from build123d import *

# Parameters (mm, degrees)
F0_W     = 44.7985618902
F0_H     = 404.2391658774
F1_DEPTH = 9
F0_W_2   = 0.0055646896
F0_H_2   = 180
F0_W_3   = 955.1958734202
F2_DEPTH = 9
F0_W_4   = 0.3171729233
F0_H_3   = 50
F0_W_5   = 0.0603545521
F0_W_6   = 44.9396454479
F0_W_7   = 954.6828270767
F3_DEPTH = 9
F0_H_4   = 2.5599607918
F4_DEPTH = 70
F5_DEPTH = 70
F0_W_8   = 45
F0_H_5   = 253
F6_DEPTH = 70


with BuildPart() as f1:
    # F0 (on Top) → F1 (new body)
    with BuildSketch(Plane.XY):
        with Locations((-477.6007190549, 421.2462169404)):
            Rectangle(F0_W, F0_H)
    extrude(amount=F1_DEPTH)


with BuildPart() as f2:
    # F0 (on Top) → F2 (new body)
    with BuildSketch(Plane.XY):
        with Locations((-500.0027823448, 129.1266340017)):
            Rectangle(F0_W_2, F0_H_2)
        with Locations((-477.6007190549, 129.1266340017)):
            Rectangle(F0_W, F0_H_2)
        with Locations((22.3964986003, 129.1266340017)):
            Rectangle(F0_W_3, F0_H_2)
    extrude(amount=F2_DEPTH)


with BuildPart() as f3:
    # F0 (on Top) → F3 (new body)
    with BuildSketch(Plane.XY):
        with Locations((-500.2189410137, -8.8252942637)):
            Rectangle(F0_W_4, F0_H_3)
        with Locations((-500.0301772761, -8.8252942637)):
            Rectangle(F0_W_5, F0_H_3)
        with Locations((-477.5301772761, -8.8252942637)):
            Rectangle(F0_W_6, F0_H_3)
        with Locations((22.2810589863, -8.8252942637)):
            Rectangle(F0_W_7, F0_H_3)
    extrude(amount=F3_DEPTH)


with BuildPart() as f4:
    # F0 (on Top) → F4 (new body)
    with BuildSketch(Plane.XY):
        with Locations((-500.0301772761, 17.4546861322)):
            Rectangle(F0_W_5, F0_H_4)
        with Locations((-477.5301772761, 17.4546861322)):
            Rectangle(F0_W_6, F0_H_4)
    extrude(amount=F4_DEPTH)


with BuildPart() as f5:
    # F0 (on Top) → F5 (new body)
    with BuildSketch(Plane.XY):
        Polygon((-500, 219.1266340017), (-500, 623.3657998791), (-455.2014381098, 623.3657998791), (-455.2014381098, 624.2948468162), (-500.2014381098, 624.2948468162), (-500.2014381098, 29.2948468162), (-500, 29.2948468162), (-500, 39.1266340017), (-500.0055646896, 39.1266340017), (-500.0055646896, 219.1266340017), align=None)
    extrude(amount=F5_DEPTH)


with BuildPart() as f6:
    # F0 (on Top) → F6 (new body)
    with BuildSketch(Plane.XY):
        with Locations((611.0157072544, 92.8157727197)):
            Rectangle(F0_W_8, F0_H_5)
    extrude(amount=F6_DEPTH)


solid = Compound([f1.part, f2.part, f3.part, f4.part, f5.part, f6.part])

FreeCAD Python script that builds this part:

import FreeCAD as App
import Part
import Sketcher


def add_polygon(sketch, points):
    """Adds a closed chain of lines whose ends are joined by coincident constraints."""
    first, n = sketch.GeometryCount, len(points)
    for a, b in zip(points, points[1:] + points[:1]):
        sketch.addGeometry(Part.LineSegment(App.Vector(*a, 0), App.Vector(*b, 0)), False)
    for i in range(n):
        sketch.addConstraint(Sketcher.Constraint("Coincident", first + i, 2, first + (i + 1) % n, 1))

doc = App.newDocument("Part")
body = doc.addObject("PartDesign::Body", "Body")

# Sketch on XY plane
sketch1 = doc.addObject("Sketcher::SketchObject", "Sketch")
body.addObject(sketch1)
sketch1.AttachmentSupport = (doc.XY_Plane, [""])
sketch1.MapMode = "FlatFace"
add_polygon(sketch1, [(-500, 623), (-500, 219), (-455, 219), (-455, 623)])  # lines 0-3
sketch1.addConstraint([
    Sketcher.Constraint("Vertical", 0),
    Sketcher.Constraint("Horizontal", 1),
    Sketcher.Constraint("Vertical", 2),
    Sketcher.Constraint("Horizontal", 3),
    Sketcher.Constraint("DistanceX", 0, 2, -1, 1, 500.0),
    Sketcher.Constraint("DistanceX", 1, 1, 1, 2, 44.798562),
    Sketcher.Constraint("DistanceY", -1, 1, 2, 2, 623.3658),
    Sketcher.Constraint("DistanceY", 0, 2, 0, 1, 404.239166),
])
pad1 = doc.addObject("PartDesign::Pad", "Pad")
body.addObject(pad1)
pad1.Profile = sketch1
pad1.Length = 9
body2 = doc.addObject("PartDesign::Body", "Body001")

# Sketch on XY plane
sketch2 = doc.addObject("Sketcher::SketchObject", "Sketch001")
body2.addObject(sketch2)
sketch2.AttachmentSupport = (doc.getObject("XY_Plane001"), [""])
sketch2.MapMode = "FlatFace"
add_polygon(sketch2, [(-500, 219), (-500, 39), (500, 39), (500, 219)])  # lines 0-3
sketch2.addConstraint([
    Sketcher.Constraint("Vertical", 0),
    Sketcher.Constraint("Horizontal", 1),
    Sketcher.Constraint("Vertical", 2),
    Sketcher.Constraint("Horizontal", 3),
    Sketcher.Constraint("DistanceX", 1, 1, 1, 2, 1000.0),
    Sketcher.Constraint("DistanceY", 0, 2, 0, 1, 180.0),
    Sketcher.Constraint("DistanceX", 0, 2, -1, 1, 500.005565),
    Sketcher.Constraint("DistanceY", -1, 1, 0, 2, 39.126634),
])
pad2 = doc.addObject("PartDesign::Pad", "Pad001")
body2.addObject(pad2)
pad2.Profile = sketch2
pad2.Length = 9
body3 = doc.addObject("PartDesign::Body", "Body002")

# Sketch on XY plane
sketch3 = doc.addObject("Sketcher::SketchObject", "Sketch002")
body3.addObject(sketch3)
sketch3.AttachmentSupport = (doc.getObject("XY_Plane002"), [""])
sketch3.MapMode = "FlatFace"
add_polygon(sketch3, [(-500, 16), (-500, -34), (500, -34), (500, 16)])  # lines 0-3
sketch3.addConstraint([
    Sketcher.Constraint("Vertical", 0),
    Sketcher.Constraint("Horizontal", 1),
    Sketcher.Constraint("Vertical", 2),
    Sketcher.Constraint("Horizontal", 3),
    Sketcher.Constraint("DistanceX", 1, 1, 1, 2, 1000.0),
    Sketcher.Constraint("DistanceY", 0, 2, 0, 1, 50.0),
    Sketcher.Constraint("DistanceX", 0, 2, -1, 1, 500.377527),
    Sketcher.Constraint("DistanceY", 0, 2, -1, 1, 33.825294),
])
pad3 = doc.addObject("PartDesign::Pad", "Pad002")
body3.addObject(pad3)
pad3.Profile = sketch3
pad3.Length = 9
body4 = doc.addObject("PartDesign::Body", "Body003")

# Sketch on XY plane
sketch4 = doc.addObject("Sketcher::SketchObject", "Sketch003")
body4.addObject(sketch4)
sketch4.AttachmentSupport = (doc.getObject("XY_Plane003"), [""])
sketch4.MapMode = "FlatFace"
add_polygon(sketch4, [(-500.1, 18.7), (-500.1, 16.2), (-455.1, 16.2), (-455.1, 18.7)])  # lines 0-3
sketch4.addConstraint([
    Sketcher.Constraint("Vertical", 0),
    Sketcher.Constraint("Horizontal", 1),
    Sketcher.Constraint("Vertical", 2),
    Sketcher.Constraint("Horizontal", 3),
    Sketcher.Constraint("DistanceX", 1, 1, 1, 2, 45.0),
    Sketcher.Constraint("DistanceY", 0, 2, 0, 1, 2.559961),
    Sketcher.Constraint("DistanceX", 0, 2, -1, 1, 500.060355),
    Sketcher.Constraint("DistanceY", -1, 1, 0, 2, 16.174706),
])
pad4 = doc.addObject("PartDesign::Pad", "Pad003")
body4.addObject(pad4)
pad4.Profile = sketch4
pad4.Length = 70
body5 = doc.addObject("PartDesign::Body", "Body004")

# Sketch on XY plane
sketch5 = doc.addObject("Sketcher::SketchObject", "Sketch004")
body5.addObject(sketch5)
sketch5.AttachmentSupport = (doc.getObject("XY_Plane004"), [""])
sketch5.MapMode = "FlatFace"
add_polygon(sketch5, [(-500, 219.127), (-500, 623.366), (-455.201, 623.366), (-455.201, 624.295), (-500.201, 624.295), (-500.201, 29.295), (-500, 29.295), (-500, 39.127), (-500.006, 39.127), (-500.006, 219.127)])  # lines 0-9
sketch5.addConstraint([
    Sketcher.Constraint("Vertical", 0),
    Sketcher.Constraint("Horizontal", 1),
    Sketcher.Constraint("Vertical", 2),
    Sketcher.Constraint("Horizontal", 3),
    Sketcher.Constraint("Vertical", 4),
    Sketcher.Constraint("Horizontal", 5),
    Sketcher.Constraint("Vertical", 6),
    Sketcher.Constraint("Horizontal", 7),
    Sketcher.Constraint("Vertical", 8),
    Sketcher.Constraint("Horizontal", 9),
    Sketcher.Constraint("Vertical", 0, 2, 5, 2),
    Sketcher.Constraint("DistanceX", 3, 2, 3, 1, 45.0),
    Sketcher.Constraint("DistanceY", 4, 2, 4, 1, 595.0),
    Sketcher.Constraint("DistanceY", 8, 1, 8, 2, 180.0),
    Sketcher.Constraint("DistanceX", 0, 2, -1, 1, 500.0),
    Sketcher.Constraint("DistanceX", 1, 1, 1, 2, 44.798562),
    Sketcher.Constraint("DistanceY", -1, 1, 0, 2, 623.3658),
    Sketcher.Constraint("DistanceX", 7, 2, 7, 1, 0.005565),
    Sketcher.Constraint("DistanceY", 0, 1, 0, 2, 404.239166),
    Sketcher.Constraint("DistanceY", 2, 1, 2, 2, 0.929047),
])
pad5 = doc.addObject("PartDesign::Pad", "Pad004")
body5.addObject(pad5)
pad5.Profile = sketch5
pad5.Length = 70
body6 = doc.addObject("PartDesign::Body", "Body005")

# Sketch on XY plane
sketch6 = doc.addObject("Sketcher::SketchObject", "Sketch005")
body6.addObject(sketch6)
sketch6.AttachmentSupport = (doc.getObject("XY_Plane005"), [""])
sketch6.MapMode = "FlatFace"
add_polygon(sketch6, [(589, 219), (589, -34), (634, -34), (634, 219)])  # lines 0-3
sketch6.addConstraint([
    Sketcher.Constraint("Vertical", 0),
    Sketcher.Constraint("Horizontal", 1),
    Sketcher.Constraint("Vertical", 2),
    Sketcher.Constraint("Horizontal", 3),
    Sketcher.Constraint("DistanceX", 1, 1, 1, 2, 45.0),
    Sketcher.Constraint("DistanceY", 0, 2, 0, 1, 253.0),
    Sketcher.Constraint("DistanceX", -1, 1, 0, 2, 588.515707),
    Sketcher.Constraint("DistanceY", 0, 2, -1, 1, 33.684227),
])
pad6 = doc.addObject("PartDesign::Pad", "Pad005")
body6.addObject(pad6)
pad6.Profile = sketch6
pad6.Length = 70

doc.recompute()
